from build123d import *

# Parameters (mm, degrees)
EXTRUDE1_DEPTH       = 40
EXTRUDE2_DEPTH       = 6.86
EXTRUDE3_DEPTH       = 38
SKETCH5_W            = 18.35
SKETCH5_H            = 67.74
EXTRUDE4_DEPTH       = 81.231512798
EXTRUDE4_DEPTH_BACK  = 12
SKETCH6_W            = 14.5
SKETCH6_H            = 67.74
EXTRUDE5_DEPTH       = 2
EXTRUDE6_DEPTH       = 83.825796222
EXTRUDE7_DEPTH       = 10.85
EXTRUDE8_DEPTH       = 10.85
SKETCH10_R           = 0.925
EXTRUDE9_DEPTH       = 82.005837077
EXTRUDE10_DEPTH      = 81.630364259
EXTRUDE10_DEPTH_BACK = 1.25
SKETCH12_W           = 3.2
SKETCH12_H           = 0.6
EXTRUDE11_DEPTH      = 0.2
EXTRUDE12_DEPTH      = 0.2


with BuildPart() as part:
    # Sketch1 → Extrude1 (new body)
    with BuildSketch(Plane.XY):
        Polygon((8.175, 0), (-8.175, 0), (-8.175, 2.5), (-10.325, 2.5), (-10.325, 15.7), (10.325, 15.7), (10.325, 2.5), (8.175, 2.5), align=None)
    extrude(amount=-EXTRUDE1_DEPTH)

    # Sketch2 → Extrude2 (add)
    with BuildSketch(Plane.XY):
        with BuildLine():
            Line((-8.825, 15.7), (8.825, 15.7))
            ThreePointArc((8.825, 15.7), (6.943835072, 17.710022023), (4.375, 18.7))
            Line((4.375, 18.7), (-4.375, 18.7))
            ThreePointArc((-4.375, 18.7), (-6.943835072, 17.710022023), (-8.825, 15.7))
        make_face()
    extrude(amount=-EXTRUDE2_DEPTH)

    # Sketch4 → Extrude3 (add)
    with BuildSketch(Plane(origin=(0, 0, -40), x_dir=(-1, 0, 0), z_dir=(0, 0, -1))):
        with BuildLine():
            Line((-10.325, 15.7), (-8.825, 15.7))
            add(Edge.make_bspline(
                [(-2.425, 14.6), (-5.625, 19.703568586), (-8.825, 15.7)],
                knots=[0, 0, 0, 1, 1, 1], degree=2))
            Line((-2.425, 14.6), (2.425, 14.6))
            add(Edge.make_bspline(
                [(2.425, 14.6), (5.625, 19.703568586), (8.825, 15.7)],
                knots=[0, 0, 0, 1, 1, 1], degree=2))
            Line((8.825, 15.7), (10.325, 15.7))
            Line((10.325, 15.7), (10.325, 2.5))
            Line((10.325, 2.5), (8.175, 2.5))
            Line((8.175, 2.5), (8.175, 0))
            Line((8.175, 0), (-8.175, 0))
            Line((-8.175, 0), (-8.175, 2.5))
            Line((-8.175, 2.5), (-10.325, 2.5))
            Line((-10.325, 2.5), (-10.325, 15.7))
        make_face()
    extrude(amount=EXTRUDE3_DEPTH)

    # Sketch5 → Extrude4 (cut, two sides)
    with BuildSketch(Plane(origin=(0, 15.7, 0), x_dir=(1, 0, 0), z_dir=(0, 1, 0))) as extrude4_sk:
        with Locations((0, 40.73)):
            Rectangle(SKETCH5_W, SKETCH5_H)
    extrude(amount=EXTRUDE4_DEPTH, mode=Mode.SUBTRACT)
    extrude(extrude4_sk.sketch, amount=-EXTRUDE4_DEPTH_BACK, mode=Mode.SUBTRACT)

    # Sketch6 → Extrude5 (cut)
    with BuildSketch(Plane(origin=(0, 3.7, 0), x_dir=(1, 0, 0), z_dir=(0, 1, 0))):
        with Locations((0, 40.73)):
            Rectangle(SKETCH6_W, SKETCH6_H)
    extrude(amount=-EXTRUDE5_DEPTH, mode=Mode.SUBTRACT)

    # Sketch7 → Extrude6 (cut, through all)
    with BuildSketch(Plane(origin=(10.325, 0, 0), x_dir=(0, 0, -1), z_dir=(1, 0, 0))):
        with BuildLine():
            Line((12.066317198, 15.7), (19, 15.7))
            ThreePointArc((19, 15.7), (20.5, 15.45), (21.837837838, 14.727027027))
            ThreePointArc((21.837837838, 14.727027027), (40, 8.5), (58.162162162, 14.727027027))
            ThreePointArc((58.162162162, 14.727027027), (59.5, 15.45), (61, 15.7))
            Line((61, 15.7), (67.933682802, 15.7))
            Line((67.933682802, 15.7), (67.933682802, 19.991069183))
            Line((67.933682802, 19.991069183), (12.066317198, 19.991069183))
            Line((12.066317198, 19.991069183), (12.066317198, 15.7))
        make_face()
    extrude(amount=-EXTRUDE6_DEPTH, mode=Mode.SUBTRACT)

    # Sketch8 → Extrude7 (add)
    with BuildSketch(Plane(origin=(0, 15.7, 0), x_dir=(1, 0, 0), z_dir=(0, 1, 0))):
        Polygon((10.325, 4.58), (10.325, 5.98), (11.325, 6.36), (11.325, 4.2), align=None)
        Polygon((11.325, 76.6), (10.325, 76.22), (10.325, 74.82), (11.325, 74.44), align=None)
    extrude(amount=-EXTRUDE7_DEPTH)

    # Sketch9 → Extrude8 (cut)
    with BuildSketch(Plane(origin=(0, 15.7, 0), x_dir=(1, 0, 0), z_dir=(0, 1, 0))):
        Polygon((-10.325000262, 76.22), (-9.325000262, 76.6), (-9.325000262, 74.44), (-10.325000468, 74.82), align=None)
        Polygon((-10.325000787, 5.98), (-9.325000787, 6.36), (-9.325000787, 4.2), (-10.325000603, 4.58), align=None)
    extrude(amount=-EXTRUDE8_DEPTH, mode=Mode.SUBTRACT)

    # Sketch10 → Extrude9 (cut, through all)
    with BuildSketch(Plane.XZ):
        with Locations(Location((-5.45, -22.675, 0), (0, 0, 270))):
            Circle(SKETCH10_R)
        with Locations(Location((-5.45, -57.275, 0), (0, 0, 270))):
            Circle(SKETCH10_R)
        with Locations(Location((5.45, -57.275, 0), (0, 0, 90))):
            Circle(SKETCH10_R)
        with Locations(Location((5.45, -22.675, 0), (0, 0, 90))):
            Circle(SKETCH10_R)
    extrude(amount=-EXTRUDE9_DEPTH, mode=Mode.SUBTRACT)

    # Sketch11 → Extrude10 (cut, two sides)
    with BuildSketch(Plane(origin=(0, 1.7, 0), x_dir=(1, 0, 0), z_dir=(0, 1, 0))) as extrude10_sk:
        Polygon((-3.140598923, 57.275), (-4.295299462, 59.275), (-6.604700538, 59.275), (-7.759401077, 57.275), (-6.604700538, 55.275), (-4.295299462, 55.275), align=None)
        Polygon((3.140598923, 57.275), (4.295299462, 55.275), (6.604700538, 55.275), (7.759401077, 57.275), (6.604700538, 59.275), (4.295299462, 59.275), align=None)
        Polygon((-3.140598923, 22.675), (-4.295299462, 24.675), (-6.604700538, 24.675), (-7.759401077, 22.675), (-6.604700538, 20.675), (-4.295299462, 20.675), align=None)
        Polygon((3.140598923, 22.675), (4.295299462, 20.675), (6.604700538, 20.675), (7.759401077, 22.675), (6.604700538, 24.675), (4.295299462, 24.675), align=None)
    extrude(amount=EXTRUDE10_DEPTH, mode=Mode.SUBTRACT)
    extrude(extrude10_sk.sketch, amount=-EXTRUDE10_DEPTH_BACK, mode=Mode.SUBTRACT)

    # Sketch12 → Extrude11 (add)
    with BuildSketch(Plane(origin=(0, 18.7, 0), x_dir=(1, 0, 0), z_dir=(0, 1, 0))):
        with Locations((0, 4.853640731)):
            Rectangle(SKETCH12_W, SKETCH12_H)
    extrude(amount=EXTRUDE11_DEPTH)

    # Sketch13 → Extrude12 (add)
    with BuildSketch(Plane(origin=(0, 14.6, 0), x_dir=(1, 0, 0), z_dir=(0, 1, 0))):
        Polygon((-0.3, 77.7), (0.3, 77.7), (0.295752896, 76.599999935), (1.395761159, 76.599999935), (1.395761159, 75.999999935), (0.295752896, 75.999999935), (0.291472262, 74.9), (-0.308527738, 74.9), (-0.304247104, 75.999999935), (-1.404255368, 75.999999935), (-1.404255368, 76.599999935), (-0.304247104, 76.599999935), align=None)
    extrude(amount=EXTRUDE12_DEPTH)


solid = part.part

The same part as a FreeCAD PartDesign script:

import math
import FreeCAD as App
import Part
import Sketcher
from FreeCAD import Vector
Q = App.Units.Quantity

doc = App.newDocument("Part")
body = doc.addObject("PartDesign::Body", "Body")

# Sketch on XY plane
sketch1 = body.newObject("Sketcher::SketchObject", "Sketch")
sketch1.AttachmentSupport = (doc.getObject("XY_Plane"), [""])
sketch1.MapMode = "FlatFace"
sketch1.addGeometry([
    Part.LineSegment(Vector(-8.2, 0, 0), Vector(8.2, 0, 0)),  # 0
    Part.LineSegment(Vector(8.2, 0, 0), Vector(8.2, 2.5, 0)),  # 1
    Part.LineSegment(Vector(8.2, 2.5, 0), Vector(10.3, 2.5, 0)),  # 2
    Part.LineSegment(Vector(10.3, 2.5, 0), Vector(10.3, 15.7, 0)),  # 3
    Part.LineSegment(Vector(10.3, 15.7, 0), Vector(-10.3, 15.7, 0)),  # 4
    Part.LineSegment(Vector(-10.3, 15.7, 0), Vector(-10.3, 2.5, 0)),  # 5
    Part.LineSegment(Vector(-10.3, 2.5, 0), Vector(-8.2, 2.5, 0)),  # 6
    Part.LineSegment(Vector(-8.2, 2.5, 0), Vector(-8.2, 0, 0)),  # 7
], False)
sketch1.addConstraint([
    Sketcher.Constraint("Coincident", 0, 2, 1, 1),
    Sketcher.Constraint("Coincident", 1, 2, 2, 1),
    Sketcher.Constraint("Coincident", 2, 2, 3, 1),
    Sketcher.Constraint("Coincident", 3, 2, 4, 1),
    Sketcher.Constraint("Coincident", 4, 2, 5, 1),
    Sketcher.Constraint("Coincident", 5, 2, 6, 1),
    Sketcher.Constraint("Coincident", 6, 2, 7, 1),
    Sketcher.Constraint("Coincident", 7, 2, 0, 1),
    Sketcher.Constraint("Horizontal", 0),
    Sketcher.Constraint("Vertical", 1),
    Sketcher.Constraint("Horizontal", 2),
    Sketcher.Constraint("Vertical", 3),
    Sketcher.Constraint("Horizontal", 4),
    Sketcher.Constraint("Vertical", 5),
    Sketcher.Constraint("Horizontal", 6),
    Sketcher.Constraint("Vertical", 7),
    Sketcher.Constraint("Symmetric", 0, 2, 7, 2, -1, 1),
    Sketcher.Constraint("Symmetric", 2, 2, 5, 2, -2),
    Sketcher.Constraint("DistanceY", 1, 1, 1, 2, Q("2.5 mm")),
    Sketcher.Constraint("DistanceY", 3, 1, 3, 2, Q("13.2 mm")),
    Sketcher.Constraint("DistanceX", 0, 1, 0, 2, Q("16.35 mm")),
    Sketcher.Constraint("DistanceX", 2, 1, 2, 2, Q("2.15 mm")),
])
pad1 = body.newObject("PartDesign::Pad", "Pad")
pad1.Profile = sketch1
pad1.Length = 40
pad1.Reversed = True

# Sketch on XY plane
sketch2 = body.newObject("Sketcher::SketchObject", "Sketch001")
sketch2.AttachmentSupport = (doc.getObject("XY_Plane"), [""])
sketch2.MapMode = "FlatFace"
sketch2.addGeometry([
    Part.LineSegment(Vector(-9, 16, 0), Vector(9, 16, 0)),
    Part.ArcOfCircle(Part.Circle(Vector(4, 13, 0), Vector(0, 0, 1), 6), math.radians(30), math.radians(82)),
    Part.LineSegment(Vector(4, 19, 0), Vector(-4, 19, 0)),
    Part.ArcOfCircle(Part.Circle(Vector(-4, 13, 0), Vector(0, 0, 1), 6), math.radians(98), math.radians(150)),
], False)
sketch2.addConstraint([
    Sketcher.Constraint("Coincident", 0, 2, 1, 1),
    Sketcher.Constraint("Coincident", 1, 2, 2, 1),
    Sketcher.Constraint("Coincident", 2, 2, 3, 1),
    Sketcher.Constraint("Coincident", 3, 2, 0, 1),
    Sketcher.Constraint("Horizontal", 0),
    Sketcher.Constraint("Horizontal", 2),
    Sketcher.Constraint("Equal", 1, 3),
    Sketcher.Constraint("Symmetric", 1, 3, 3, 3, -2),
    Sketcher.Constraint("DistanceX", 3, 3, 1, 3, Q("7 mm")),
    Sketcher.Constraint("DistanceY", 0, 2, 1, 2, Q("3 mm")),
    Sketcher.Constraint("DistanceX", 0, 1, 0, 2, Q("17.65 mm")),
    Sketcher.Constraint("DistanceX", 2, 2, 2, 1, Q("8.75 mm")),
    Sketcher.Constraint("DistanceY", -1, 1, 0, 2, Q("15.7 mm")),
])
pad2 = body.newObject("PartDesign::Pad", "Pad001")
pad2.Profile = sketch2
pad2.Length = 6.86
pad2.Reversed = True

# Sketch on XY plane
sketch3 = body.newObject("Sketcher::SketchObject", "Sketch002")
sketch3.AttachmentSupport = (doc.getObject("XY_Plane"), [""])
sketch3.MapMode = "FlatFace"
sketch3.AttachmentOffset = App.Placement(Vector(0, 0, -40), App.Rotation())
sketch3.addGeometry([
    Part.LineSegment(Vector(8.825, 15.7, 0), Vector(10.325, 15.7, 0)),  # 0
    Part.LineSegment(Vector(10.325, 15.7, 0), Vector(10.325, 2.5, 0)),  # 1
    Part.LineSegment(Vector(10.325, 2.5, 0), Vector(8.175, 2.5, 0)),  # 2
    Part.LineSegment(Vector(8.175, 2.5, 0), Vector(8.175, 0, 0)),  # 3
    Part.LineSegment(Vector(8.175, 0, 0), Vector(-8.175, 0, 0)),  # 4
    Part.LineSegment(Vector(-8.175, 0, 0), Vector(-8.175, 2.5, 0)),  # 5
    Part.LineSegment(Vector(-8.175, 2.5, 0), Vector(-10.325, 2.5, 0)),  # 6
    Part.LineSegment(Vector(-10.325, 2.5, 0), Vector(-10.325, 15.7, 0)),  # 7
    Part.LineSegment(Vector(-10.325, 15.7, 0), Vector(-8.825, 15.7, 0)),  # 8
    Part.BSplineCurve([Vector(-2.425, 14.6, 0), Vector(-5.625, 19.703569, 0), Vector(-8.825, 15.7, 0)], [3, 3], [0, 1], False, 2, [1, 1, 1], False),  # 9
    Part.LineSegment(Vector(-2.425, 14.6, 0), Vector(2.425, 14.6, 0)),  # 10
    Part.BSplineCurve([Vector(2.425, 14.6, 0), Vector(5.625, 19.703569, 0), Vector(8.825, 15.7, 0)], [3, 3], [0, 1], False, 2, [1, 1, 1], False),  # 11
], False)
sketch3.addConstraint([
    Sketcher.Constraint("Block", 9),
    Sketcher.Constraint("Block", 11),
    Sketcher.Constraint("Coincident", 0, 2, 1, 1),
    Sketcher.Constraint("Coincident", 1, 2, 2, 1),
    Sketcher.Constraint("Coincident", 2, 2, 3, 1),
    Sketcher.Constraint("Coincident", 3, 2, 4, 1),
    Sketcher.Constraint("Coincident", 4, 2, 5, 1),
    Sketcher.Constraint("Coincident", 5, 2, 6, 1),
    Sketcher.Constraint("Coincident", 6, 2, 7, 1),
    Sketcher.Constraint("Coincident", 7, 2, 8, 1),
    Sketcher.Constraint("Coincident", 8, 2, 9, 2),
    Sketcher.Constraint("Coincident", 9, 1, 10, 1),
    Sketcher.Constraint("Coincident", 10, 2, 11, 1),
    Sketcher.Constraint("Coincident", 11, 2, 0, 1),
    Sketcher.Constraint("Horizontal", 0),
    Sketcher.Constraint("Vertical", 1),
    Sketcher.Constraint("Horizontal", 2),
    Sketcher.Constraint("Vertical", 3),
    Sketcher.Constraint("Horizontal", 4),
    Sketcher.Constraint("Vertical", 5),
    Sketcher.Constraint("Horizontal", 6),
    Sketcher.Constraint("Vertical", 7),
    Sketcher.Constraint("Horizontal", 8),
    Sketcher.Constraint("Symmetric", 3, 2, 4, 2, -1, 1),
    Sketcher.Constraint("Symmetric", 1, 2, 6, 2, -2),
    Sketcher.Constraint("DistanceX", 0, 1, 0, 2, Q("1.5 mm")),
    Sketcher.Constraint("DistanceY", 1, 2, 1, 1, Q("13.2 mm")),
    Sketcher.Constraint("DistanceX", 2, 2, 2, 1, Q("2.15 mm")),
])
pad3 = body.newObject("PartDesign::Pad", "Pad002")
pad3.Profile = sketch3
pad3.Length = 38
pad3.Reversed = True

# Sketch on XZ plane
sketch4 = body.newObject("Sketcher::SketchObject", "Sketch003")
sketch4.AttachmentSupport = (doc.getObject("XZ_Plane"), [""])
sketch4.MapMode = "FlatFace"
sketch4.AttachmentOffset = App.Placement(Vector(0, 0, -15.7), App.Rotation())
sketch4.addGeometry([
    Part.LineSegment(Vector(-9, -75, 0), Vector(-9, -7, 0)),
    Part.LineSegment(Vector(-9, -7, 0), Vector(9, -7, 0)),
    Part.LineSegment(Vector(9, -7, 0), Vector(9, -75, 0)),
    Part.LineSegment(Vector(9, -75, 0), Vector(-9, -75, 0)),
], False)
sketch4.addConstraint([
    Sketcher.Constraint("Coincident", 0, 2, 1, 1),
    Sketcher.Constraint("Coincident", 1, 2, 2, 1),
    Sketcher.Constraint("Coincident", 2, 2, 3, 1),
    Sketcher.Constraint("Coincident", 3, 2, 0, 1),
    Sketcher.Constraint("Vertical", 0),
    Sketcher.Constraint("Horizontal", 1),
    Sketcher.Constraint("Vertical", 2),
    Sketcher.Constraint("Horizontal", 3),
    Sketcher.Constraint("DistanceX", 1, 1, 1, 2, Q("18.35 mm")),
    Sketcher.Constraint("DistanceY", 0, 1, 0, 2, Q("67.74 mm")),
    Sketcher.Constraint("DistanceY", 2, 2, -1, 1, Q("74.6 mm")),
    Sketcher.Constraint("DistanceX", 0, 2, -1, 1, Q("9.175 mm")),
])
pocket1 = body.newObject("PartDesign::Pocket", "Pocket")
pocket1.Profile = sketch4
pocket1.Type = "TwoLengths"
pocket1.Length = 81.231513
pocket1.Length2 = 12

# Sketch on XZ plane
sketch5 = body.newObject("Sketcher::SketchObject", "Sketch004")
sketch5.AttachmentSupport = (doc.getObject("XZ_Plane"), [""])
sketch5.MapMode = "FlatFace"
sketch5.AttachmentOffset = App.Placement(Vector(0, 0, -3.7), App.Rotation())
sketch5.addGeometry([
    Part.LineSegment(Vector(-7, -75, 0), Vector(-7, -7, 0)),
    Part.LineSegment(Vector(-7, -7, 0), Vector(7, -7, 0)),
    Part.LineSegment(Vector(7, -7, 0), Vector(7, -75, 0)),
    Part.LineSegment(Vector(7, -75, 0), Vector(-7, -75, 0)),
], False)
sketch5.addConstraint([
    Sketcher.Constraint("Coincident", 0, 2, 1, 1),
    Sketcher.Constraint("Coincident", 1, 2, 2, 1),
    Sketcher.Constraint("Coincident", 2, 2, 3, 1),
    Sketcher.Constraint("Coincident", 3, 2, 0, 1),
    Sketcher.Constraint("Vertical", 0),
    Sketcher.Constraint("Horizontal", 1),
    Sketcher.Constraint("Vertical", 2),
    Sketcher.Constraint("Horizontal", 3),
    Sketcher.Constraint("DistanceX", 1, 1, 1, 2, Q("14.5 mm")),
    Sketcher.Constraint("DistanceY", 0, 1, 0, 2, Q("67.74 mm")),
    Sketcher.Constraint("DistanceY", 2, 2, -1, 1, Q("74.6 mm")),
    Sketcher.Constraint("DistanceX", 0, 2, -1, 1, Q("7.25 mm")),
])
pocket2 = body.newObject("PartDesign::Pocket", "Pocket001")
pocket2.Profile = sketch5
pocket2.Length = 2
pocket2.Reversed = True

# Sketch on YZ plane
sketch6 = body.newObject("Sketcher::SketchObject", "Sketch005")
sketch6.AttachmentSupport = (doc.getObject("YZ_Plane"), [""])
sketch6.MapMode = "FlatFace"
sketch6.AttachmentOffset = App.Placement(Vector(0, 0, 10.325), App.Rotation())
sketch6.addGeometry([
    Part.LineSegment(Vector(15.7, -12.1, 0), Vector(15.7, -19, 0)),  # 0
    Part.ArcOfCircle(Part.Circle(Vector(11.1, -19, 0), Vector(0, 0, 1), 4.6), math.radians(-38), math.radians(0)),  # 1
    Part.ArcOfCircle(Part.Circle(Vector(38.1, -40, 0), Vector(0, 0, 1), 29.6), math.radians(142), math.radians(218)),  # 2
    Part.ArcOfCircle(Part.Circle(Vector(11.1, -61, 0), Vector(0, 0, 1), 4.6), math.radians(0), math.radians(38)),  # 3
    Part.LineSegment(Vector(15.7, -61, 0), Vector(15.7, -67.9, 0)),  # 4
    Part.LineSegment(Vector(15.7, -67.9, 0), Vector(20, -67.9, 0)),  # 5
    Part.LineSegment(Vector(20, -67.9, 0), Vector(20, -12.1, 0)),  # 6
    Part.LineSegment(Vector(20, -12.1, 0), Vector(15.7, -12.1, 0)),  # 7
], False)
sketch6.addConstraint([
    Sketcher.Constraint("Tangent", 0, 2, 1, 2),
    Sketcher.Constraint("Tangent", 1, 1, 2, 1),
    Sketcher.Constraint("Tangent", 2, 2, 3, 2),
    Sketcher.Constraint("Tangent", 3, 1, 4, 1),
    Sketcher.Constraint("Coincident", 4, 2, 5, 1),
    Sketcher.Constraint("Coincident", 5, 2, 6, 1),
    Sketcher.Constraint("Coincident", 6, 2, 7, 1),
    Sketcher.Constraint("Coincident", 7, 2, 0, 1),
    Sketcher.Constraint("Vertical", 0),
    Sketcher.Constraint("Vertical", 4),
    Sketcher.Constraint("Horizontal", 5),
    Sketcher.Constraint("Vertical", 6),
    Sketcher.Constraint("Horizontal", 7),
    Sketcher.Constraint("Equal", 1, 3),
    Sketcher.Constraint("Vertical", 1, 3, 3, 3),
    Sketcher.Constraint("Equal", 0, 4),
    Sketcher.Constraint("Radius", 2, Q("29.6 mm")),
    Sketcher.Constraint("DistanceY", 1, 3, -1, 1, Q("19 mm")),
    Sketcher.Constraint("DistanceY", 2, 3, -1, 1, Q("40 mm")),
    Sketcher.Constraint("Radius", 1, Q("4.625 mm")),
    Sketcher.Constraint("DistanceX", -1, 1, 2, 3, Q("38.1 mm")),
    Sketcher.Constraint("DistanceX", 5, 1, 5, 2, Q("4.291069 mm")),
    Sketcher.Constraint("DistanceY", 0, 2, 0, 1, Q("6.933683 mm")),
])
pocket3 = body.newObject("PartDesign::Pocket", "Pocket002")
pocket3.Profile = sketch6
pocket3.Type = "ThroughAll"

# Sketch on XZ plane
sketch7 = body.newObject("Sketcher::SketchObject", "Sketch006")
sketch7.AttachmentSupport = (doc.getObject("XZ_Plane"), [""])
sketch7.MapMode = "FlatFace"
sketch7.AttachmentOffset = App.Placement(Vector(0, 0, -15.7), App.Rotation())
sketch7.addGeometry([
    Part.LineSegment(Vector(10.3, -6, 0), Vector(10.3, -4.6, 0)),  # 0
    Part.LineSegment(Vector(10.3, -4.6, 0), Vector(11.3, -4.2, 0)),  # 1
    Part.LineSegment(Vector(11.3, -4.2, 0), Vector(11.3, -6.4, 0)),  # 2
    Part.LineSegment(Vector(11.3, -6.4, 0), Vector(10.3, -6, 0)),  # 3
    Part.LineSegment(Vector(11.3, -76.6, 0), Vector(10.3, -76.2, 0)),  # 4
    Part.LineSegment(Vector(10.3, -76.2, 0), Vector(10.3, -74.8, 0)),  # 5
    Part.LineSegment(Vector(10.3, -74.8, 0), Vector(11.3, -74.4, 0)),  # 6
    Part.LineSegment(Vector(11.3, -74.4, 0), Vector(11.3, -76.6, 0)),  # 7
], False)
sketch7.addConstraint([
    Sketcher.Constraint("Coincident", 0, 2, 1, 1),
    Sketcher.Constraint("Coincident", 1, 2, 2, 1),
    Sketcher.Constraint("Coincident", 2, 2, 3, 1),
    Sketcher.Constraint("Coincident", 3, 2, 0, 1),
    Sketcher.Constraint("Coincident", 4, 2, 5, 1),
    Sketcher.Constraint("Coincident", 5, 2, 6, 1),
    Sketcher.Constraint("Coincident", 6, 2, 7, 1),
    Sketcher.Constraint("Coincident", 7, 2, 4, 1),
    Sketcher.Constraint("Vertical", 0),
    Sketcher.Constraint("Vertical", 2),
    Sketcher.Constraint("Vertical", 5),
    Sketcher.Constraint("Vertical", 7),
    Sketcher.Constraint("Parallel", 3, 4),
    Sketcher.Constraint("Parallel", 1, 6),
    Sketcher.Constraint("Vertical", 3, 2, 4, 2),
    Sketcher.Constraint("Vertical", 2, 2, 6, 2),
    Sketcher.Constraint("Equal", 0, 5),
    Sketcher.Constraint("Equal", 1, 3),
    Sketcher.Constraint("DistanceY", 0, 1, 0, 2, Q("1.4 mm")),
    Sketcher.Constraint("DistanceX", 0, 2, 1, 2, Q("1 mm")),
    Sketcher.Constraint("DistanceY", 2, 2, 2, 1, Q("2.16 mm")),
    Sketcher.Constraint("DistanceY", 1, 2, -1, 1, Q("4.2 mm")),
    Sketcher.Constraint("DistanceY", 7, 2, -1, 1, Q("76.6 mm")),
    Sketcher.Constraint("DistanceX", -1, 1, 0, 2, Q("10.325 mm")),
])
pad4 = body.newObject("PartDesign::Pad", "Pad003")
pad4.Profile = sketch7
pad4.Length = 10.85

# Sketch on XZ plane
sketch8 = body.newObject("Sketcher::SketchObject", "Sketch007")
sketch8.AttachmentSupport = (doc.getObject("XZ_Plane"), [""])
sketch8.MapMode = "FlatFace"
sketch8.AttachmentOffset = App.Placement(Vector(0, 0, -15.7), App.Rotation())
sketch8.addGeometry([
    Part.LineSegment(Vector(-9.3, -76.6, 0), Vector(-10.3, -76.2, 0)),  # 0
    Part.LineSegment(Vector(-10.3, -76.2, 0), Vector(-10.3, -74.8, 0)),  # 1
    Part.LineSegment(Vector(-10.3, -74.8, 0), Vector(-9.3, -74.4, 0)),  # 2
    Part.LineSegment(Vector(-9.3, -74.4, 0), Vector(-9.3, -76.6, 0)),  # 3
    Part.LineSegment(Vector(-9.3, -6.4, 0), Vector(-10.3, -6, 0)),  # 4
    Part.LineSegment(Vector(-10.3, -6, 0), Vector(-10.3, -4.6, 0)),  # 5
    Part.LineSegment(Vector(-10.3, -4.6, 0), Vector(-9.3, -4.2, 0)),  # 6
    Part.LineSegment(Vector(-9.3, -4.2, 0), Vector(-9.3, -6.4, 0)),  # 7
], False)
sketch8.addConstraint([
    Sketcher.Constraint("Coincident", 0, 2, 1, 1),
    Sketcher.Constraint("Coincident", 1, 2, 2, 1),
    Sketcher.Constraint("Coincident", 2, 2, 3, 1),
    Sketcher.Constraint("Coincident", 3, 2, 0, 1),
    Sketcher.Constraint("Coincident", 4, 2, 5, 1),
    Sketcher.Constraint("Coincident", 5, 2, 6, 1),
    Sketcher.Constraint("Coincident", 6, 2, 7, 1),
    Sketcher.Constraint("Coincident", 7, 2, 4, 1),
    Sketcher.Constraint("Vertical", 1),
    Sketcher.Constraint("Vertical", 3),
    Sketcher.Constraint("Vertical", 5),
    Sketcher.Constraint("Vertical", 7),
    Sketcher.Constraint("Parallel", 0, 4),
    Sketcher.Constraint("Parallel", 2, 6),
    Sketcher.Constraint("Vertical", 1, 2, 4, 2),
    Sketcher.Constraint("Vertical", 3, 2, 6, 2),
    Sketcher.Constraint("Equal", 1, 5),
    Sketcher.Constraint("Equal", 0, 2),
    Sketcher.Constraint("DistanceY", 1, 1, 1, 2, Q("1.4 mm")),
    Sketcher.Constraint("DistanceX", 1, 2, 2, 2, Q("1 mm")),
    Sketcher.Constraint("DistanceY", 3, 2, 3, 1, Q("2.16 mm")),
    Sketcher.Constraint("DistanceY", 3, 2, -1, 1, Q("76.6 mm")),
    Sketcher.Constraint("DistanceY", 6, 2, -1, 1, Q("4.2 mm")),
    Sketcher.Constraint("DistanceX", 0, 2, -1, 1, Q("10.325 mm")),
])
pocket4 = body.newObject("PartDesign::Pocket", "Pocket003")
pocket4.Profile = sketch8
pocket4.Length = 10.85
pocket4.Reversed = True

# Sketch on XZ plane
sketch9 = body.newObject("Sketcher::SketchObject", "Sketch008")
sketch9.AttachmentSupport = (doc.getObject("XZ_Plane"), [""])
sketch9.MapMode = "FlatFace"
sketch9.addGeometry([
    Part.Circle(Vector(-5.5, -22.7, 0), Vector(0, 0, 1), 0.9),
    Part.Circle(Vector(-5.5, -57.3, 0), Vector(0, 0, 1), 0.9),
    Part.Circle(Vector(5.5, -57.3, 0), Vector(0, 0, 1), 0.9),
    Part.Circle(Vector(5.5, -22.7, 0), Vector(0, 0, 1), 0.9),
], False)
sketch9.addConstraint([
    Sketcher.Constraint("Equal", 0, 1),
    Sketcher.Constraint("Equal", 1, 2),
    Sketcher.Constraint("Equal", 2, 3),
    Sketcher.Constraint("Symmetric", 1, 3, 2, 3, -2),
    Sketcher.Constraint("Symmetric", 0, 3, 3, 3, -2),
    Sketcher.Constraint("Vertical", 0, 3, 1, 3),
    Sketcher.Constraint("Diameter", 0, Q("1.85 mm")),
    Sketcher.Constraint("DistanceY", 1, 3, 0, 3, Q("34.6 mm")),
    Sketcher.Constraint("DistanceX", 1, 3, 2, 3, Q("10.9 mm")),
    Sketcher.Constraint("DistanceY", 0, 3, -1, 1, Q("22.675 mm")),
])
pocket5 = body.newObject("PartDesign::Pocket", "Pocket004")
pocket5.Profile = sketch9
pocket5.Type = "ThroughAll"

# Sketch on XZ plane
sketch10 = body.newObject("Sketcher::SketchObject", "Sketch009")
sketch10.AttachmentSupport = (doc.getObject("XZ_Plane"), [""])
sketch10.MapMode = "FlatFace"
sketch10.AttachmentOffset = App.Placement(Vector(0, 0, -1.7), App.Rotation())
sketch10.addGeometry([
    Part.LineSegment(Vector(-3.1, -57.3, 0), Vector(-4.3, -59.3, 0)),  # 0
    Part.LineSegment(Vector(-4.3, -59.3, 0), Vector(-6.6, -59.3, 0)),  # 1
    Part.LineSegment(Vector(-6.6, -59.3, 0), Vector(-7.8, -57.3, 0)),  # 2
    Part.LineSegment(Vector(-7.8, -57.3, 0), Vector(-6.6, -55.3, 0)),  # 3
    Part.LineSegment(Vector(-6.6, -55.3, 0), Vector(-4.3, -55.3, 0)),  # 4
    Part.LineSegment(Vector(-4.3, -55.3, 0), Vector(-3.1, -57.3, 0)),  # 5
    Part.LineSegment(Vector(3.1, -57.3, 0), Vector(4.3, -55.3, 0)),  # 6
    Part.LineSegment(Vector(4.3, -55.3, 0), Vector(6.6, -55.3, 0)),  # 7
    Part.LineSegment(Vector(6.6, -55.3, 0), Vector(7.8, -57.3, 0)),  # 8
    Part.LineSegment(Vector(7.8, -57.3, 0), Vector(6.6, -59.3, 0)),  # 9
    Part.LineSegment(Vector(6.6, -59.3, 0), Vector(4.3, -59.3, 0)),  # 10
    Part.LineSegment(Vector(4.3, -59.3, 0), Vector(3.1, -57.3, 0)),  # 11
    Part.LineSegment(Vector(-3.1, -22.7, 0), Vector(-4.3, -24.7, 0)),  # 12
    Part.LineSegment(Vector(-4.3, -24.7, 0), Vector(-6.6, -24.7, 0)),  # 13
    Part.LineSegment(Vector(-6.6, -24.7, 0), Vector(-7.8, -22.7, 0)),  # 14
    Part.LineSegment(Vector(-7.8, -22.7, 0), Vector(-6.6, -20.7, 0)),  # 15
    Part.LineSegment(Vector(-6.6, -20.7, 0), Vector(-4.3, -20.7, 0)),  # 16
    Part.LineSegment(Vector(-4.3, -20.7, 0), Vector(-3.1, -22.7, 0)),  # 17
    Part.LineSegment(Vector(3.1, -22.7, 0), Vector(4.3, -20.7, 0)),  # 18
    Part.LineSegment(Vector(4.3, -20.7, 0), Vector(6.6, -20.7, 0)),  # 19
    Part.LineSegment(Vector(6.6, -20.7, 0), Vector(7.8, -22.7, 0)),  # 20
    Part.LineSegment(Vector(7.8, -22.7, 0), Vector(6.6, -24.7, 0)),  # 21
    Part.LineSegment(Vector(6.6, -24.7, 0), Vector(4.3, -24.7, 0)),  # 22
    Part.LineSegment(Vector(4.3, -24.7, 0), Vector(3.1, -22.7, 0)),  # 23
], False)
sketch10.addConstraint([
    Sketcher.Constraint("Coincident", 0, 2, 1, 1),
    Sketcher.Constraint("Coincident", 1, 2, 2, 1),
    Sketcher.Constraint("Coincident", 2, 2, 3, 1),
    Sketcher.Constraint("Coincident", 3, 2, 4, 1),
    Sketcher.Constraint("Coincident", 4, 2, 5, 1),
    Sketcher.Constraint("Coincident", 5, 2, 0, 1),
    Sketcher.Constraint("Coincident", 6, 2, 7, 1),
    Sketcher.Constraint("Coincident", 7, 2, 8, 1),
    Sketcher.Constraint("Coincident", 8, 2, 9, 1),
    Sketcher.Constraint("Coincident", 9, 2, 10, 1),
    Sketcher.Constraint("Coincident", 10, 2, 11, 1),
    Sketcher.Constraint("Coincident", 11, 2, 6, 1),
    Sketcher.Constraint("Coincident", 12, 2, 13, 1),
    Sketcher.Constraint("Coincident", 13, 2, 14, 1),
    Sketcher.Constraint("Coincident", 14, 2, 15, 1),
    Sketcher.Constraint("Coincident", 15, 2, 16, 1),
    Sketcher.Constraint("Coincident", 16, 2, 17, 1),
    Sketcher.Constraint("Coincident", 17, 2, 12, 1),
    Sketcher.Constraint("Coincident", 18, 2, 19, 1),
    Sketcher.Constraint("Coincident", 19, 2, 20, 1),
    Sketcher.Constraint("Coincident", 20, 2, 21, 1),
    Sketcher.Constraint("Coincident", 21, 2, 22, 1),
    Sketcher.Constraint("Coincident", 22, 2, 23, 1),
    Sketcher.Constraint("Coincident", 23, 2, 18, 1),
    Sketcher.Constraint("Horizontal", 1),
    Sketcher.Constraint("Horizontal", 4),
    Sketcher.Constraint("Horizontal", 7),
    Sketcher.Constraint("Horizontal", 10),
    Sketcher.Constraint("Horizontal", 13),
    Sketcher.Constraint("Horizontal", 16),
    Sketcher.Constraint("Horizontal", 19),
    Sketcher.Constraint("Horizontal", 22),
    Sketcher.Constraint("Symmetric", 4, 2, 6, 2, -2),
    Sketcher.Constraint("Symmetric", 2, 2, 8, 2, -2),
    Sketcher.Constraint("Symmetric", 1, 2, 9, 2, -2),
    Sketcher.Constraint("Symmetric", 5, 2, 11, 2, -2),
    Sketcher.Constraint("Symmetric", 16, 2, 18, 2, -2),
    Sketcher.Constraint("Symmetric", 14, 2, 20, 2, -2),
    Sketcher.Constraint("Symmetric", 13, 2, 21, 2, -2),
    Sketcher.Constraint("Symmetric", 17, 2, 23, 2, -2),
    Sketcher.Constraint("Parallel", 0, 3),
    Sketcher.Constraint("Parallel", 2, 5),
    Sketcher.Constraint("Parallel", 3, 6),
    Sketcher.Constraint("Parallel", 5, 8),
    Sketcher.Constraint("Parallel", 8, 11),
    Sketcher.Constraint("Parallel", 9, 12),
    Sketcher.Constraint("Parallel", 11, 14),
    Sketcher.Constraint("Parallel", 12, 15),
    Sketcher.Constraint("Parallel", 14, 17),
    Sketcher.Constraint("Parallel", 17, 20),
    Sketcher.Constraint("Parallel", 20, 23),
    Sketcher.Constraint("Horizontal", 2, 2, 5, 2),
    Sketcher.Constraint("Horizontal", 14, 2, 17, 2),
    Sketcher.Constraint("Vertical", 1, 2, 3, 2),
    Sketcher.Constraint("Vertical", 4, 2, 12, 2),
    Sketcher.Constraint("Vertical", 3, 2, 13, 2),
    Sketcher.Constraint("Vertical", 2, 2, 14, 2),
    Sketcher.Constraint("Vertical", 13, 2, 15, 2),
    Sketcher.Constraint("Angle", 0, Q("-120 deg")),
    Sketcher.Constraint("DistanceY", 1, 2, 2, 2, Q("2 mm")),
    Sketcher.Constraint("DistanceX", 3, 2, 6, 2, Q("10.9 mm")),
    Sketcher.Constraint("DistanceY", 4, 2, 12, 2, Q("30.6 mm")),
    Sketcher.Constraint("DistanceX", 1, 2, 1, 1, Q("2.309401 mm")),
    Sketcher.Constraint("DistanceY", 0, 2, -1, 1, Q("59.275 mm")),
])
pocket6 = body.newObject("PartDesign::Pocket", "Pocket005")
pocket6.Profile = sketch10
pocket6.Type = "TwoLengths"
pocket6.Length = 81.630364
pocket6.Length2 = 1.25

# Sketch on XZ plane
sketch11 = body.newObject("Sketcher::SketchObject", "Sketch010")
sketch11.AttachmentSupport = (doc.getObject("XZ_Plane"), [""])
sketch11.MapMode = "FlatFace"
sketch11.AttachmentOffset = App.Placement(Vector(0, 0, -18.7), App.Rotation())
sketch11.addGeometry([
    Part.LineSegment(Vector(-1.6, -5.2, 0), Vector(-1.6, -4.6, 0)),
    Part.LineSegment(Vector(-1.6, -4.6, 0), Vector(1.6, -4.6, 0)),
    Part.LineSegment(Vector(1.6, -4.6, 0), Vector(1.6, -5.2, 0)),
    Part.LineSegment(Vector(1.6, -5.2, 0), Vector(-1.6, -5.2, 0)),
], False)
sketch11.addConstraint([
    Sketcher.Constraint("Coincident", 0, 2, 1, 1),
    Sketcher.Constraint("Coincident", 1, 2, 2, 1),
    Sketcher.Constraint("Coincident", 2, 2, 3, 1),
    Sketcher.Constraint("Coincident", 3, 2, 0, 1),
    Sketcher.Constraint("Vertical", 0),
    Sketcher.Constraint("Horizontal", 1),
    Sketcher.Constraint("Vertical", 2),
    Sketcher.Constraint("Horizontal", 3),
    Sketcher.Constraint("DistanceX", 1, 1, 1, 2, Q("3.2 mm")),
    Sketcher.Constraint("DistanceY", 0, 1, 0, 2, Q("0.6 mm")),
    Sketcher.Constraint("DistanceX", 0, 2, -1, 1, Q("1.6 mm")),
    Sketcher.Constraint("DistanceY", 0, 2, -1, 1, Q("4.553641 mm")),
])
pad5 = body.newObject("PartDesign::Pad", "Pad004")
pad5.Profile = sketch11
pad5.Length = 0.2
pad5.Reversed = True

# Sketch on XZ plane
sketch12 = body.newObject("Sketcher::SketchObject", "Sketch011")
sketch12.AttachmentSupport = (doc.getObject("XZ_Plane"), [""])
sketch12.MapMode = "FlatFace"
sketch12.AttachmentOffset = App.Placement(Vector(0, 0, -14.6), App.Rotation())
sketch12.addGeometry([
    Part.LineSegment(Vector(0.3, -77.7, 0), Vector(-0.3, -77.7, 0)),  # 0
    Part.LineSegment(Vector(-0.3, -77.7, 0), Vector(-0.304247, -76.6, 0)),  # 1
    Part.LineSegment(Vector(-0.304247, -76.6, 0), Vector(-1.404255, -76.6, 0)),  # 2
    Part.LineSegment(Vector(-1.404255, -76.6, 0), Vector(-1.404255, -76, 0)),  # 3
    Part.LineSegment(Vector(-1.404255, -76, 0), Vector(-0.304247, -76, 0)),  # 4
    Part.LineSegment(Vector(-0.304247, -76, 0), Vector(-0.308528, -74.9, 0)),  # 5
    Part.LineSegment(Vector(-0.308528, -74.9, 0), Vector(0.291472, -74.9, 0)),  # 6
    Part.LineSegment(Vector(0.291472, -74.9, 0), Vector(0.295753, -76, 0)),  # 7
    Part.LineSegment(Vector(0.295753, -76, 0), Vector(1.395761, -76, 0)),  # 8
    Part.LineSegment(Vector(1.395761, -76, 0), Vector(1.395761, -76.6, 0)),  # 9
    Part.LineSegment(Vector(1.395761, -76.6, 0), Vector(0.295753, -76.6, 0)),  # 10
    Part.LineSegment(Vector(0.295753, -76.6, 0), Vector(0.3, -77.7, 0)),  # 11
], False)
sketch12.addConstraint([
    Sketcher.Constraint("Coincident", 0, 2, 1, 1),
    Sketcher.Constraint("Coincident", 1, 2, 2, 1),
    Sketcher.Constraint("Coincident", 2, 2, 3, 1),
    Sketcher.Constraint("Coincident", 3, 2, 4, 1),
    Sketcher.Constraint("Coincident", 4, 2, 5, 1),
    Sketcher.Constraint("Coincident", 5, 2, 6, 1),
    Sketcher.Constraint("Coincident", 6, 2, 7, 1),
    Sketcher.Constraint("Coincident", 7, 2, 8, 1),
    Sketcher.Constraint("Coincident", 8, 2, 9, 1),
    Sketcher.Constraint("Coincident", 9, 2, 10, 1),
    Sketcher.Constraint("Coincident", 10, 2, 11, 1),
    Sketcher.Constraint("Coincident", 11, 2, 0, 1),
    Sketcher.Constraint("Horizontal", 0),
    Sketcher.Constraint("Horizontal", 2),
    Sketcher.Constraint("Vertical", 3),
    Sketcher.Constraint("Horizontal", 4),
    Sketcher.Constraint("Horizontal", 6),
    Sketcher.Constraint("Horizontal", 8),
    Sketcher.Constraint("Vertical", 9),
    Sketcher.Constraint("Horizontal", 10),
    Sketcher.Constraint("DistanceX", 0, 2, 0, 1, Q("0.6 mm")),
    Sketcher.Constraint("DistanceX", 6, 1, 6, 2, Q("0.6 mm")),
    Sketcher.Constraint("DistanceY", 3, 1, 3, 2, Q("0.6 mm")),
    Sketcher.Constraint("DistanceY", 9, 2, 9, 1, Q("0.6 mm")),
    Sketcher.Constraint("DistanceY", 3, 2, -1, 1, Q("76 mm")),
    Sketcher.Constraint("DistanceY", 7, 2, -1, 1, Q("76 mm")),
    Sketcher.Constraint("DistanceX", 0, 2, -1, 1, Q("0.3 mm")),
    Sketcher.Constraint("DistanceY", 0, 2, -1, 1, Q("77.7 mm")),
    Sketcher.Constraint("DistanceY", 5, 2, -1, 1, Q("74.9 mm")),
    Sketcher.Constraint("DistanceX", 4, 2, 7, 2, Q("0.6 mm")),
    Sketcher.Constraint("DistanceX", 1, 2, 7, 2, Q("0.6 mm")),
    Sketcher.Constraint("DistanceX", 1, 2, 10, 2, Q("0.6 mm")),
    Sketcher.Constraint("DistanceX", 2, 2, 2, 1, Q("1.100008 mm")),
    Sketcher.Constraint("DistanceX", 8, 1, 8, 2, Q("1.100008 mm")),
    Sketcher.Constraint("DistanceX", -1, 1, 8, 2, Q("1.395761 mm")),
    Sketcher.Constraint("DistanceX", 5, 2, 4, 2, Q("0.004281 mm")),
])
pad6 = body.newObject("PartDesign::Pad", "Pad005")
pad6.Profile = sketch12
pad6.Length = 0.2
pad6.Reversed = True

doc.recompute()
